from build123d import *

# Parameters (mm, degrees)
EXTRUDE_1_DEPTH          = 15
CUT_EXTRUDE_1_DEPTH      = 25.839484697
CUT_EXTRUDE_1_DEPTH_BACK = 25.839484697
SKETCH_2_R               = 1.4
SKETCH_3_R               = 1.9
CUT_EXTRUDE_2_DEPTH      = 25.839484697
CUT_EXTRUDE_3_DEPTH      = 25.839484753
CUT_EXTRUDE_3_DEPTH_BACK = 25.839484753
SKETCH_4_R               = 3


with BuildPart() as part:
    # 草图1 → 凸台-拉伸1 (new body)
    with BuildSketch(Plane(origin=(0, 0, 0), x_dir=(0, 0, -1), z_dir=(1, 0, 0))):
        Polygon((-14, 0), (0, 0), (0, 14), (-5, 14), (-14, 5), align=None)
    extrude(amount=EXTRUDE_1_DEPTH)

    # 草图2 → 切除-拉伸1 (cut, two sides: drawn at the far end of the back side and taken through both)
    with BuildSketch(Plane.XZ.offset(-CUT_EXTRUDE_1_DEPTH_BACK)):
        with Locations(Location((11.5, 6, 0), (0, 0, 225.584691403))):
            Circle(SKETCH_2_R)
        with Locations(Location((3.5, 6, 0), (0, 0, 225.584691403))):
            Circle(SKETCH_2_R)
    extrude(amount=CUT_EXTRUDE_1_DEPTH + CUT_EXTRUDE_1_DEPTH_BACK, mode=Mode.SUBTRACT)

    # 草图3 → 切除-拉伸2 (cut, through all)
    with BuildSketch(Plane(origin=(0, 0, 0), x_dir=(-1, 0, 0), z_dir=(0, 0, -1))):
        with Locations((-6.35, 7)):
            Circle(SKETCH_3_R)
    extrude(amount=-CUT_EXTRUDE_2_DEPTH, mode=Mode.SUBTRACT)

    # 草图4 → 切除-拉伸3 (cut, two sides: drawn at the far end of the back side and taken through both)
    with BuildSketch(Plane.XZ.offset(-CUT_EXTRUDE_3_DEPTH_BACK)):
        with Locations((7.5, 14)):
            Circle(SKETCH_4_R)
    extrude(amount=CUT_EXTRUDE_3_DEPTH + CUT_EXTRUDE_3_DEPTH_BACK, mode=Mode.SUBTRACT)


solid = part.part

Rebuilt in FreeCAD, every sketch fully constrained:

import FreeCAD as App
import Part
import Sketcher
from FreeCAD import Vector
Q = App.Units.Quantity


def add_polygon(sketch, points):
    """Adds a closed chain of lines whose ends are joined by coincident constraints."""
    first, n = sketch.GeometryCount, len(points)
    for a, b in zip(points, points[1:] + points[:1]):
        sketch.addGeometry(Part.LineSegment(App.Vector(*a, 0), App.Vector(*b, 0)), False)
    for i in range(n):
        sketch.addConstraint(Sketcher.Constraint("Coincident", first + i, 2, first + (i + 1) % n, 1))

doc = App.newDocument("Part")
body = doc.addObject("PartDesign::Body", "Body")

sketch1 = body.newObject("Sketcher::SketchObject", "Sketch")
sketch1.AttachmentSupport = (doc.getObject("YZ_Plane"), [""])
sketch1.MapMode = "FlatFace"
add_polygon(sketch1, [(0, 14), (0, 0), (14, 0), (14, 5), (5, 14)])
sketch1.addConstraint([
    Sketcher.Constraint("Vertical", 0),
    Sketcher.Constraint("Horizontal", 1),
    Sketcher.Constraint("Vertical", 2),
    Sketcher.Constraint("Horizontal", 4),
    Sketcher.Constraint("Coincident", 0, 2, -1, 1),
    Sketcher.Constraint("Equal", 1, 0),
    Sketcher.Constraint("Equal", 4, 2),
    Sketcher.Constraint("DistanceX", 1, 1, 1, 2, Q("14 mm")),
    Sketcher.Constraint("DistanceX", 4, 2, 4, 1, Q("5 mm")),
])
pad1 = body.newObject("PartDesign::Pad", "Pad")
pad1.Profile = sketch1
pad1.Length = 15

sketch2 = body.newObject("Sketcher::SketchObject", "Sketch001")
sketch2.AttachmentSupport = (doc.getObject("XZ_Plane"), [""])
sketch2.MapMode = "FlatFace"
sketch2.addGeometry([
    Part.Circle(Vector(11.5, 6, 0), Vector(0, 0, 1), 1.4),
    Part.Circle(Vector(3.5, 6, 0), Vector(0, 0, 1), 1.4),
], False)
sketch2.addConstraint([
    Sketcher.Constraint("Equal", 0, 1),
    Sketcher.Constraint("Horizontal", 0, 3, 1, 3),
    Sketcher.Constraint("Diameter", 0, Q("2.8 mm")),
    Sketcher.Constraint("DistanceY", -1, 1, 0, 3, Q("6 mm")),
    Sketcher.Constraint("DistanceX", 1, 3, 0, 3, Q("8 mm")),
    Sketcher.Constraint("DistanceX", -1, 1, 0, 3, Q("11.5 mm")),
])
pocket1 = body.newObject("PartDesign::Pocket", "Pocket")
pocket1.Profile = sketch2
pocket1.Type = "ThroughAll"
pocket1.Midplane = True

sketch3 = body.newObject("Sketcher::SketchObject", "Sketch002")
sketch3.AttachmentSupport = (doc.getObject("XY_Plane"), [""])
sketch3.MapMode = "FlatFace"
sketch3.addGeometry(Part.Circle(Vector(6.35, 7, 0), Vector(0, 0, 1), 1.9), False)
sketch3.addConstraint([
    Sketcher.Constraint("Diameter", 0, Q("3.8 mm")),
    Sketcher.Constraint("DistanceY", -1, 1, 0, 3, Q("7 mm")),
    Sketcher.Constraint("DistanceX", -1, 1, 0, 3, Q("6.35 mm")),
])
pocket2 = body.newObject("PartDesign::Pocket", "Pocket001")
pocket2.Profile = sketch3
pocket2.Type = "ThroughAll"
pocket2.Reversed = True

sketch4 = body.newObject("Sketcher::SketchObject", "Sketch003")
sketch4.AttachmentSupport = (doc.getObject("XZ_Plane"), [""])
sketch4.MapMode = "FlatFace"
sketch4.addGeometry(Part.Circle(Vector(7.5, 14, 0), Vector(0, 0, 1), 3), False)
sketch4.addConstraint([
    Sketcher.Constraint("Diameter", 0, Q("6 mm")),
    Sketcher.Constraint("DistanceY", -1, 1, 0, 3, Q("14 mm")),
    Sketcher.Constraint("DistanceX", -1, 1, 0, 3, Q("7.5 mm")),
])
pocket3 = body.newObject("PartDesign::Pocket", "Pocket002")
pocket3.Profile = sketch4
pocket3.Type = "ThroughAll"
pocket3.Midplane = True

doc.recompute()
